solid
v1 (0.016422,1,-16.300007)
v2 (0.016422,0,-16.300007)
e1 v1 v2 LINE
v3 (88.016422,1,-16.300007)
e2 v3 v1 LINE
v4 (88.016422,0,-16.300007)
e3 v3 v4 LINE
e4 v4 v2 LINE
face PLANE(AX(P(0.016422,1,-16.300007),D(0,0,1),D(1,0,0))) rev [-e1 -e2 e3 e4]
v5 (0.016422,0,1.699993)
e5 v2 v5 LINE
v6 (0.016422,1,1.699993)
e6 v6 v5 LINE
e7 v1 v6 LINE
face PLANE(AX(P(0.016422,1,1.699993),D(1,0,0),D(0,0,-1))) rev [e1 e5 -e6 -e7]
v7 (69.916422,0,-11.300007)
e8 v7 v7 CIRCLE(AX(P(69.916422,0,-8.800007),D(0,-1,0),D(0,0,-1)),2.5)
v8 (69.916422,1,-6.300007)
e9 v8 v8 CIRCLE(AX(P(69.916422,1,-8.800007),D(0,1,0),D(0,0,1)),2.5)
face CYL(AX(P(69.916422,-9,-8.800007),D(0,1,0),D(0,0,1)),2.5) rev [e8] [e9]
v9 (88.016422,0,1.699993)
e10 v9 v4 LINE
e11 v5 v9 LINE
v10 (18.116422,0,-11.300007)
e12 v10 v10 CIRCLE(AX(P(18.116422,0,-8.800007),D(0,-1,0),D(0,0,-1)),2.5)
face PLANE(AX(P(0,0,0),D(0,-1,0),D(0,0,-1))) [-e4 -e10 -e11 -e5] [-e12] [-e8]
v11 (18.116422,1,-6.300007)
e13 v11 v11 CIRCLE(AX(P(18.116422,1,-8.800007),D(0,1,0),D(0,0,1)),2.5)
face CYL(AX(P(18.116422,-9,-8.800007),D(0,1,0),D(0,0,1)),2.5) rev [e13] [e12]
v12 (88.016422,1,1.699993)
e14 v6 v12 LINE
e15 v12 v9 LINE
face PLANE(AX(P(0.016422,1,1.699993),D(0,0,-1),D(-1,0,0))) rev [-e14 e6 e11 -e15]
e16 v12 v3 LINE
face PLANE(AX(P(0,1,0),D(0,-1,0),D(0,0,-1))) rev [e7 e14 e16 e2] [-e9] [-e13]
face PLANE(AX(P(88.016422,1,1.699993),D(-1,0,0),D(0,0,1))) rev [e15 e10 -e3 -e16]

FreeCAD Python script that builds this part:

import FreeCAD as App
import Part
import Sketcher

V = App.Vector


def add_polygon(sketch, points):
    """Adds a closed chain of lines whose ends are joined by coincident constraints."""
    first, n = sketch.GeometryCount, len(points)
    for a, b in zip(points, points[1:] + points[:1]):
        sketch.addGeometry(Part.LineSegment(App.Vector(*a, 0), App.Vector(*b, 0)), False)
    for i in range(n):
        sketch.addConstraint(Sketcher.Constraint("Coincident", first + i, 2, first + (i + 1) % n, 1))

doc = App.newDocument("Part")
body = doc.addObject("PartDesign::Body", "Body")

# Sketch on XZ plane
sketch1 = body.newObject("Sketcher::SketchObject", "Sketch")
sketch1.AttachmentSupport = (doc.getObject("XZ_Plane"), [""])
sketch1.MapMode = "FlatFace"
add_polygon(sketch1, [(0, -16), (0, 2), (88, 2), (88, -16)])  # lines 0-3
sketch1.addConstraint(Sketcher.Constraint("Vertical", 0))
sketch1.addConstraint(Sketcher.Constraint("Horizontal", 1))
sketch1.addConstraint(Sketcher.Constraint("Vertical", 2))
sketch1.addConstraint(Sketcher.Constraint("Horizontal", 3))
sketch1.addConstraint(Sketcher.Constraint("DistanceX", 1, 1, 1, 2, 88.0))
sketch1.addConstraint(Sketcher.Constraint("DistanceY", 0, 1, 0, 2, 18.0))
sketch1.addConstraint(Sketcher.Constraint("DistanceX", -1, 1, 0, 2, 0.016422))
sketch1.addConstraint(Sketcher.Constraint("DistanceY", -1, 1, 0, 2, 1.699993))
pad1 = body.newObject("PartDesign::Pad", "Pad")
pad1.Profile = sketch1
pad1.Length = 1
pad1.Reversed = True

# Sketch on XZ plane
sketch2 = body.newObject("Sketcher::SketchObject", "Sketch001")
sketch2.AttachmentSupport = (doc.getObject("XZ_Plane"), [""])
sketch2.MapMode = "FlatFace"
sketch2.AttachmentOffset = App.Placement(V(0, 0, -1), App.Rotation())
sketch2.addGeometry(Part.Circle(V(69.9, -8.8, 0), V(0, 0, 1), 2.5), False)
sketch2.addGeometry(Part.Circle(V(18.1, -8.8, 0), V(0, 0, 1), 2.5), False)
sketch2.addConstraint(Sketcher.Constraint("Equal", 0, 1))
sketch2.addConstraint(Sketcher.Constraint("Horizontal", 0, 3, 1, 3))
sketch2.addConstraint(Sketcher.Constraint("Diameter", 0, 5.0))
sketch2.addConstraint(Sketcher.Constraint("DistanceX", 1, 3, 0, 3, 51.8))
sketch2.addConstraint(Sketcher.Constraint("DistanceX", -1, 1, 0, 3, 69.916422))
sketch2.addConstraint(Sketcher.Constraint("DistanceY", 0, 3, -1, 1, 8.800007))
pocket1 = body.newObject("PartDesign::Pocket", "Pocket")
pocket1.Profile = sketch2
pocket1.Length = 10
pocket1.Reversed = True

doc.recompute()
